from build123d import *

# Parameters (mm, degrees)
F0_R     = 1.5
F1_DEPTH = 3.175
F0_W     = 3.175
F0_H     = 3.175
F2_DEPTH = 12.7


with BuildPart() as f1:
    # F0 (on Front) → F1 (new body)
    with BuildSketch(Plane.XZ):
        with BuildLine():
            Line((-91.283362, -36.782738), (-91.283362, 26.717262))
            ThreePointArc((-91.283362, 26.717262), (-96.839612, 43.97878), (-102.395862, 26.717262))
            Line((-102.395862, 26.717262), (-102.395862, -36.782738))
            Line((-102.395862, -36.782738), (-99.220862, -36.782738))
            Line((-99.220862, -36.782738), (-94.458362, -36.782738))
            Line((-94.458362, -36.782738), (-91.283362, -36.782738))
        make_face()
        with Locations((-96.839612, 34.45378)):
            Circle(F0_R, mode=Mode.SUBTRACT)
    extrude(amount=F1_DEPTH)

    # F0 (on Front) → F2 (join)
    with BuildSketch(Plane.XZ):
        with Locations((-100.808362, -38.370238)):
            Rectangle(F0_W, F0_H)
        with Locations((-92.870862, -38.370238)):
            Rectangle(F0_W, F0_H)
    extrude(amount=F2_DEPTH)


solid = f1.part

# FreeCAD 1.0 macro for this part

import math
import FreeCAD as App
import Part
import Sketcher

V = App.Vector
Q = App.Units.Quantity

doc = App.newDocument("Part")
body = doc.addObject("PartDesign::Body", "Body")

# Sketch on XZ plane
sketch1 = doc.addObject("Sketcher::SketchObject", "Sketch")
body.addObject(sketch1)
sketch1.AttachmentSupport = (doc.XZ_Plane, [""])
sketch1.MapMode = "FlatFace"
sketch1.addGeometry([
    Part.LineSegment(V(-91.3, -36.8, 0), V(-91.3, 26.7, 0)),  # 0
    Part.ArcOfCircle(Part.Circle(V(-96.8, 34.5, 0), V(0, 0, 1), 9.5), math.radians(-54), math.radians(234)),  # 1
    Part.LineSegment(V(-102.4, 26.7, 0), V(-102.4, -36.8, 0)),  # 2
    Part.LineSegment(V(-102.4, -36.8, 0), V(-91.3, -36.8, 0)),  # 3
    Part.Circle(V(-96.8, 34.5, 0), V(0, 0, 1), 1.5),  # 4
], False)
sketch1.addConstraint([
    Sketcher.Constraint("Coincident", 0, 2, 1, 1),
    Sketcher.Constraint("Coincident", 1, 2, 2, 1),
    Sketcher.Constraint("Coincident", 2, 2, 3, 1),
    Sketcher.Constraint("Coincident", 3, 2, 0, 1),
    Sketcher.Constraint("Vertical", 0),
    Sketcher.Constraint("Vertical", 2),
    Sketcher.Constraint("Horizontal", 3),
    Sketcher.Constraint("Coincident", 4, 3, 1, 3),
    Sketcher.Constraint("Horizontal", 0, 2, 1, 2),
    Sketcher.Constraint("DistanceY", 0, 1, 0, 2, Q("2.5 in")),
    Sketcher.Constraint("Radius", 1, Q("0.375 in")),
    Sketcher.Constraint("Diameter", 4, 3.0),
    Sketcher.Constraint("DistanceX", 3, 1, 3, 2, Q("0.4375 in")),
    Sketcher.Constraint("DistanceY", -1, 1, 1, 3, 34.45378),
    Sketcher.Constraint("DistanceX", 0, 2, -1, 1, 91.283362),
])
pad1 = doc.addObject("PartDesign::Pad", "Pad")
body.addObject(pad1)
pad1.Profile = sketch1
pad1.Length = Q("0.125 in")

# Sketch on XZ plane
sketch2 = doc.addObject("Sketcher::SketchObject", "Sketch001")
body.addObject(sketch2)
sketch2.AttachmentSupport = (doc.XZ_Plane, [""])
sketch2.MapMode = "FlatFace"
sketch2.addGeometry([
    Part.LineSegment(V(-102.4, -36.8, 0), V(-102.4, -40, 0)),  # 0
    Part.LineSegment(V(-102.4, -40, 0), V(-99.2, -40, 0)),  # 1
    Part.LineSegment(V(-99.2, -40, 0), V(-99.2, -36.8, 0)),  # 2
    Part.LineSegment(V(-99.2, -36.8, 0), V(-102.4, -36.8, 0)),  # 3
    Part.LineSegment(V(-94.5, -36.8, 0), V(-94.5, -40, 0)),  # 4
    Part.LineSegment(V(-94.5, -40, 0), V(-91.3, -40, 0)),  # 5
    Part.LineSegment(V(-91.3, -40, 0), V(-91.3, -36.8, 0)),  # 6
    Part.LineSegment(V(-91.3, -36.8, 0), V(-94.5, -36.8, 0)),  # 7
], False)
sketch2.addConstraint([
    Sketcher.Constraint("Coincident", 0, 2, 1, 1),
    Sketcher.Constraint("Coincident", 1, 2, 2, 1),
    Sketcher.Constraint("Coincident", 2, 2, 3, 1),
    Sketcher.Constraint("Coincident", 3, 2, 0, 1),
    Sketcher.Constraint("Coincident", 4, 2, 5, 1),
    Sketcher.Constraint("Coincident", 5, 2, 6, 1),
    Sketcher.Constraint("Coincident", 6, 2, 7, 1),
    Sketcher.Constraint("Coincident", 7, 2, 4, 1),
    Sketcher.Constraint("Vertical", 0),
    Sketcher.Constraint("Horizontal", 1),
    Sketcher.Constraint("Vertical", 2),
    Sketcher.Constraint("Horizontal", 3),
    Sketcher.Constraint("Vertical", 4),
    Sketcher.Constraint("Horizontal", 5),
    Sketcher.Constraint("Vertical", 6),
    Sketcher.Constraint("Horizontal", 7),
    Sketcher.Constraint("Horizontal", 1, 2, 4, 2),
    Sketcher.Constraint("Horizontal", 3, 2, 6, 2),
    Sketcher.Constraint("Equal", 3, 5),
    Sketcher.Constraint("Equal", 7, 0),
    Sketcher.Constraint("DistanceX", 1, 1, 1, 2, Q("0.125 in")),
    Sketcher.Constraint("DistanceX", 1, 2, 4, 2, Q("0.1875 in")),
    Sketcher.Constraint("DistanceX", 0, 2, -1, 1, 102.395862),
    Sketcher.Constraint("DistanceY", 2, 2, -1, 1, 36.782738),
])
pad2 = doc.addObject("PartDesign::Pad", "Pad001")
body.addObject(pad2)
pad2.Profile = sketch2
pad2.Length = Q("0.5 in")

doc.recompute()
